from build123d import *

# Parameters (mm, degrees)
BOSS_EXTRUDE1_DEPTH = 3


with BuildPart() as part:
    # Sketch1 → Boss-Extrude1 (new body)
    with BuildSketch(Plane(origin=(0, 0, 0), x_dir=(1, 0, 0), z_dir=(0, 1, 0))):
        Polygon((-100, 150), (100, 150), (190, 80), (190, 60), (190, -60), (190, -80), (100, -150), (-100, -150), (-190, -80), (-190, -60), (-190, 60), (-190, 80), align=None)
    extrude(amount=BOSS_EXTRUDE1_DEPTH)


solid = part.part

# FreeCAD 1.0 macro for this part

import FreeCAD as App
import Part
import Sketcher

V = App.Vector


def add_polygon(sketch, points):
    """Adds a closed chain of lines whose ends are joined by coincident constraints."""
    first, n = sketch.GeometryCount, len(points)
    for a, b in zip(points, points[1:] + points[:1]):
        sketch.addGeometry(Part.LineSegment(App.Vector(*a, 0), App.Vector(*b, 0)), False)
    for i in range(n):
        sketch.addConstraint(Sketcher.Constraint("Coincident", first + i, 2, first + (i + 1) % n, 1))

doc = App.newDocument("Part")
body = doc.addObject("PartDesign::Body", "Body")

# Sketch on XZ plane
sketch1 = body.newObject("Sketcher::SketchObject", "Sketch")
sketch1.AttachmentSupport = (doc.getObject("XZ_Plane"), [""])
sketch1.MapMode = "FlatFace"
add_polygon(sketch1, [(100, -150), (-100, -150), (-190, -80), (-190, 80), (-100, 150), (100, 150), (190, 80), (190, -80)])  # lines 0-7
sketch1.addConstraint([
    Sketcher.Constraint("Horizontal", 0),
    Sketcher.Constraint("Vertical", 2),
    Sketcher.Constraint("Horizontal", 4),
    Sketcher.Constraint("Vertical", 6),
    Sketcher.Constraint("Symmetric", 0, 2, 4, 2, -1, 1),
    Sketcher.Constraint("Symmetric", 1, 2, 5, 2, -1, 1),
    Sketcher.Constraint("Parallel", 3, 7),
    Sketcher.Constraint("Horizontal", 2, 2, 5, 2),
    Sketcher.Constraint("Horizontal", 1, 2, 6, 2),
    Sketcher.Constraint("Vertical", 0, 2, 3, 2),
    Sketcher.Constraint("DistanceX", 0, 2, 0, 1, 200.0),
    Sketcher.Constraint("DistanceY", 2, 1, 2, 2, 160.0),
    Sketcher.Constraint("DistanceY", 0, 2, -1, 1, 150.0),
    Sketcher.Constraint("DistanceX", 1, 2, -1, 1, 190.0),
])
pad1 = body.newObject("PartDesign::Pad", "Pad")
pad1.Profile = sketch1
pad1.Length = 3
pad1.Reversed = True

doc.recompute()
